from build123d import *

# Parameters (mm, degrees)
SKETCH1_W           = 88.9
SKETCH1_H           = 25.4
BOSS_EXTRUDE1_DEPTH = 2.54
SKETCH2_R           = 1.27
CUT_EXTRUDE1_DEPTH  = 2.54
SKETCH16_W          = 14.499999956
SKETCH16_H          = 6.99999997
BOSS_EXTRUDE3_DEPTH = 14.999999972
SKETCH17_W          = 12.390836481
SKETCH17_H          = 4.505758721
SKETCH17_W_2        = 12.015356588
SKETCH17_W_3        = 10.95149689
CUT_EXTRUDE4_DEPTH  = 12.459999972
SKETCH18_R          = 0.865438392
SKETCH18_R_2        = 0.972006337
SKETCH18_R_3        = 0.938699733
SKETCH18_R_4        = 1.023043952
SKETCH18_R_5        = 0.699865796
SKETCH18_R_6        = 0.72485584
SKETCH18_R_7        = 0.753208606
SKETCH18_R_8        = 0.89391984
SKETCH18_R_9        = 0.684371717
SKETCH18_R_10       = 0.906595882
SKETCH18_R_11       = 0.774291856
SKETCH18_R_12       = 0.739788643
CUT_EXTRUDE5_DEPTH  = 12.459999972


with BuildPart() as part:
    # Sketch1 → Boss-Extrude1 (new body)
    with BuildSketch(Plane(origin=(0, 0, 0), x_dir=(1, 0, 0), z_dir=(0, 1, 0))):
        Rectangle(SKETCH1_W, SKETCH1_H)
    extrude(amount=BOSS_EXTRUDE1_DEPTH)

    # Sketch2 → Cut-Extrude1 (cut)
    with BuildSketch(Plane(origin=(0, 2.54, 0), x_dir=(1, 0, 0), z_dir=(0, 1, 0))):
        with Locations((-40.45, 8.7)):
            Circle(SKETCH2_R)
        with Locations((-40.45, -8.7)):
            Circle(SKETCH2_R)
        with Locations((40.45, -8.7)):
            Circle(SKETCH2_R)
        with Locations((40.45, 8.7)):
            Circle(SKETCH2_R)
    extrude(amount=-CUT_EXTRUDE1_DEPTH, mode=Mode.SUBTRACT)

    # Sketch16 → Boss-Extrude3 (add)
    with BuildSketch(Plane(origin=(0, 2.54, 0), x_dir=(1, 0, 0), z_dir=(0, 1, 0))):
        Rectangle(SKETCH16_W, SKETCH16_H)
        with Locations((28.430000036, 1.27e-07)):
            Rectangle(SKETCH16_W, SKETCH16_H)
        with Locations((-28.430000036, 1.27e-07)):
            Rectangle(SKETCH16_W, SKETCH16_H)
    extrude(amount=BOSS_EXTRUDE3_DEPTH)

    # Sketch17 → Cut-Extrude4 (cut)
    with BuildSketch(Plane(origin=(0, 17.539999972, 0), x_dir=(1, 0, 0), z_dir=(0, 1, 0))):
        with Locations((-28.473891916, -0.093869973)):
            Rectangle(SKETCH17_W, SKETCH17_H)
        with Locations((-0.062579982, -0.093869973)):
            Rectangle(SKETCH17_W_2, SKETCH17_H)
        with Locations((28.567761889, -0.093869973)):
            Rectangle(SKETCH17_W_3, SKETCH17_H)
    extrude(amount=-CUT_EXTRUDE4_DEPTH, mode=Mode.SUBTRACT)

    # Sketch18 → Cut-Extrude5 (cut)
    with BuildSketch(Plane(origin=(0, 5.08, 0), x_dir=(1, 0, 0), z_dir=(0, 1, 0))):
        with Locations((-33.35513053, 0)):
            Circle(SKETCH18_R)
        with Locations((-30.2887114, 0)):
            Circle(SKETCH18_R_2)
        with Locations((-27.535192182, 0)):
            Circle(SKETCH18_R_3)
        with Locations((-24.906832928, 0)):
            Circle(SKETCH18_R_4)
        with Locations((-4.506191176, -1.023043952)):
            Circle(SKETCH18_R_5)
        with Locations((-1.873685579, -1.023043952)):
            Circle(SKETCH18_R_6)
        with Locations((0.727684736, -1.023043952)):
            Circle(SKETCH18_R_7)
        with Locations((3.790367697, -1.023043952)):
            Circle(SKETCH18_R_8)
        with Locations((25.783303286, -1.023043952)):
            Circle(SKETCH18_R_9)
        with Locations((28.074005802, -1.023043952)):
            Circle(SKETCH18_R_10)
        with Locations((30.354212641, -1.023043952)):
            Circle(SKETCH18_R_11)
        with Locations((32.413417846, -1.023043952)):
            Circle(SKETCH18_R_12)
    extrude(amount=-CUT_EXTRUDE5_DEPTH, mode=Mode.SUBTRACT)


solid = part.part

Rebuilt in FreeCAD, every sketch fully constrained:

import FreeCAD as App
import Part
import Sketcher

doc = App.newDocument("Part")
body = doc.addObject("PartDesign::Body", "Body")

# Sketch on XZ plane
sketch1 = body.newObject("Sketcher::SketchObject", "Sketch")
sketch1.AttachmentSupport = (doc.getObject("XZ_Plane"), [""])
sketch1.MapMode = "FlatFace"
sketch1.addGeometry([
    Part.LineSegment(App.Vector(-44, -13, 0), App.Vector(-44, 13, 0)),
    Part.LineSegment(App.Vector(-44, 13, 0), App.Vector(44, 13, 0)),
    Part.LineSegment(App.Vector(44, 13, 0), App.Vector(44, -13, 0)),
    Part.LineSegment(App.Vector(44, -13, 0), App.Vector(-44, -13, 0)),
], False)
sketch1.addConstraint([
    Sketcher.Constraint("Coincident", 0, 2, 1, 1),
    Sketcher.Constraint("Coincident", 1, 2, 2, 1),
    Sketcher.Constraint("Coincident", 2, 2, 3, 1),
    Sketcher.Constraint("Coincident", 3, 2, 0, 1),
    Sketcher.Constraint("Vertical", 0),
    Sketcher.Constraint("Horizontal", 1),
    Sketcher.Constraint("Vertical", 2),
    Sketcher.Constraint("Horizontal", 3),
    Sketcher.Constraint("Symmetric", 0, 2, 2, 2, -1, 1),
    Sketcher.Constraint("DistanceX", 1, 1, 1, 2, 88.9),
    Sketcher.Constraint("DistanceY", 0, 1, 0, 2, 25.4),
])
pad1 = body.newObject("PartDesign::Pad", "Pad")
pad1.Profile = sketch1
pad1.Length = 2.54
pad1.Reversed = True

# Sketch on XZ plane
sketch2 = body.newObject("Sketcher::SketchObject", "Sketch001")
sketch2.AttachmentSupport = (doc.getObject("XZ_Plane"), [""])
sketch2.MapMode = "FlatFace"
sketch2.AttachmentOffset = App.Placement(App.Vector(0, 0, -2.54), App.Rotation())
sketch2.addGeometry([
    Part.Circle(App.Vector(-40.5, -8.7, 0), App.Vector(0, 0, 1), 1.3),
    Part.Circle(App.Vector(-40.5, 8.7, 0), App.Vector(0, 0, 1), 1.3),
    Part.Circle(App.Vector(40.5, 8.7, 0), App.Vector(0, 0, 1), 1.3),
    Part.Circle(App.Vector(40.5, -8.7, 0), App.Vector(0, 0, 1), 1.3),
], False)
sketch2.addConstraint([
    Sketcher.Constraint("Equal", 0, 1),
    Sketcher.Constraint("Equal", 1, 2),
    Sketcher.Constraint("Equal", 2, 3),
    Sketcher.Constraint("Symmetric", 0, 3, 2, 3, -1, 1),
    Sketcher.Constraint("Symmetric", 1, 3, 3, 3, -1, 1),
    Sketcher.Constraint("Symmetric", 1, 3, 2, 3, -2),
    Sketcher.Constraint("Diameter", 0, 2.54),
    Sketcher.Constraint("DistanceY", 0, 3, -1, 1, 8.7),
    Sketcher.Constraint("DistanceX", 1, 3, 2, 3, 80.9),
])
pocket1 = body.newObject("PartDesign::Pocket", "Pocket")
pocket1.Profile = sketch2
pocket1.Length = 2.54
pocket1.Reversed = True

# Sketch on XZ plane
sketch3 = body.newObject("Sketcher::SketchObject", "Sketch002")
sketch3.AttachmentSupport = (doc.getObject("XZ_Plane"), [""])
sketch3.MapMode = "FlatFace"
sketch3.AttachmentOffset = App.Placement(App.Vector(0, 0, -2.54), App.Rotation())
sketch3.addGeometry([
    Part.LineSegment(App.Vector(-7, -3, 0), App.Vector(-7, 3, 0)),  # 0
    Part.LineSegment(App.Vector(-7, 3, 0), App.Vector(7, 3, 0)),  # 1
    Part.LineSegment(App.Vector(7, 3, 0), App.Vector(7, -3, 0)),  # 2
    Part.LineSegment(App.Vector(7, -3, 0), App.Vector(-7, -3, 0)),  # 3
    Part.LineSegment(App.Vector(21, -4, 0), App.Vector(21, 3, 0)),  # 4
    Part.LineSegment(App.Vector(21, 3, 0), App.Vector(36, 3, 0)),  # 5
    Part.LineSegment(App.Vector(36, 3, 0), App.Vector(36, -4, 0)),  # 6
    Part.LineSegment(App.Vector(36, -4, 0), App.Vector(21, -4, 0)),  # 7
    Part.LineSegment(App.Vector(-36, -4, 0), App.Vector(-36, 3, 0)),  # 8
    Part.LineSegment(App.Vector(-36, 3, 0), App.Vector(-21, 3, 0)),  # 9
    Part.LineSegment(App.Vector(-21, 3, 0), App.Vector(-21, -4, 0)),  # 10
    Part.LineSegment(App.Vector(-21, -4, 0), App.Vector(-36, -4, 0)),  # 11
], False)
sketch3.addConstraint([
    Sketcher.Constraint("Coincident", 0, 2, 1, 1),
    Sketcher.Constraint("Coincident", 1, 2, 2, 1),
    Sketcher.Constraint("Coincident", 2, 2, 3, 1),
    Sketcher.Constraint("Coincident", 3, 2, 0, 1),
    Sketcher.Constraint("Coincident", 4, 2, 5, 1),
    Sketcher.Constraint("Coincident", 5, 2, 6, 1),
    Sketcher.Constraint("Coincident", 6, 2, 7, 1),
    Sketcher.Constraint("Coincident", 7, 2, 4, 1),
    Sketcher.Constraint("Coincident", 8, 2, 9, 1),
    Sketcher.Constraint("Coincident", 9, 2, 10, 1),
    Sketcher.Constraint("Coincident", 10, 2, 11, 1),
    Sketcher.Constraint("Coincident", 11, 2, 8, 1),
    Sketcher.Constraint("Vertical", 0),
    Sketcher.Constraint("Horizontal", 1),
    Sketcher.Constraint("Vertical", 2),
    Sketcher.Constraint("Horizontal", 3),
    Sketcher.Constraint("Vertical", 4),
    Sketcher.Constraint("Horizontal", 5),
    Sketcher.Constraint("Vertical", 6),
    Sketcher.Constraint("Horizontal", 7),
    Sketcher.Constraint("Vertical", 8),
    Sketcher.Constraint("Horizontal", 9),
    Sketcher.Constraint("Vertical", 10),
    Sketcher.Constraint("Horizontal", 11),
    Sketcher.Constraint("Symmetric", 0, 2, 2, 2, -1, 1),
    Sketcher.Constraint("Symmetric", 6, 2, 8, 2, -1, 1),
    Sketcher.Constraint("Symmetric", 4, 2, 10, 2, -1, 1),
    Sketcher.Constraint("Horizontal", 1, 2, 4, 2),
    Sketcher.Constraint("Horizontal", 3, 2, 6, 2),
    Sketcher.Constraint("Equal", 3, 5),
    Sketcher.Constraint("DistanceY", 0, 1, 0, 2, 7.0),
    Sketcher.Constraint("DistanceX", 1, 1, 1, 2, 14.5),
    Sketcher.Constraint("DistanceX", -1, 1, 4, 2, 21.18),
])
pad2 = body.newObject("PartDesign::Pad", "Pad001")
pad2.Profile = sketch3
pad2.Length = 15
pad2.Reversed = True

# Sketch on XZ plane
sketch4 = body.newObject("Sketcher::SketchObject", "Sketch003")
sketch4.AttachmentSupport = (doc.getObject("XZ_Plane"), [""])
sketch4.MapMode = "FlatFace"
sketch4.AttachmentOffset = App.Placement(App.Vector(0, 0, -17.54), App.Rotation())
sketch4.addGeometry([
    Part.LineSegment(App.Vector(-34.7, -2.2, 0), App.Vector(-34.7, 2.3, 0)),  # 0
    Part.LineSegment(App.Vector(-34.7, 2.3, 0), App.Vector(-22.3, 2.3, 0)),  # 1
    Part.LineSegment(App.Vector(-22.3, 2.3, 0), App.Vector(-22.3, -2.2, 0)),  # 2
    Part.LineSegment(App.Vector(-22.3, -2.2, 0), App.Vector(-34.7, -2.2, 0)),  # 3
    Part.LineSegment(App.Vector(-6.1, -2.2, 0), App.Vector(-6.1, 2.3, 0)),  # 4
    Part.LineSegment(App.Vector(-6.1, 2.3, 0), App.Vector(5.9, 2.3, 0)),  # 5
    Part.LineSegment(App.Vector(5.9, 2.3, 0), App.Vector(5.9, -2.2, 0)),  # 6
    Part.LineSegment(App.Vector(5.9, -2.2, 0), App.Vector(-6.1, -2.2, 0)),  # 7
    Part.LineSegment(App.Vector(23.1, -2.2, 0), App.Vector(23.1, 2.3, 0)),  # 8
    Part.LineSegment(App.Vector(23.1, 2.3, 0), App.Vector(34, 2.3, 0)),  # 9
    Part.LineSegment(App.Vector(34, 2.3, 0), App.Vector(34, -2.2, 0)),  # 10
    Part.LineSegment(App.Vector(34, -2.2, 0), App.Vector(23.1, -2.2, 0)),  # 11
], False)
sketch4.addConstraint([
    Sketcher.Constraint("Coincident", 0, 2, 1, 1),
    Sketcher.Constraint("Coincident", 1, 2, 2, 1),
    Sketcher.Constraint("Coincident", 2, 2, 3, 1),
    Sketcher.Constraint("Coincident", 3, 2, 0, 1),
    Sketcher.Constraint("Coincident", 4, 2, 5, 1),
    Sketcher.Constraint("Coincident", 5, 2, 6, 1),
    Sketcher.Constraint("Coincident", 6, 2, 7, 1),
    Sketcher.Constraint("Coincident", 7, 2, 4, 1),
    Sketcher.Constraint("Coincident", 8, 2, 9, 1),
    Sketcher.Constraint("Coincident", 9, 2, 10, 1),
    Sketcher.Constraint("Coincident", 10, 2, 11, 1),
    Sketcher.Constraint("Coincident", 11, 2, 8, 1),
    Sketcher.Constraint("Vertical", 0),
    Sketcher.Constraint("Horizontal", 1),
    Sketcher.Constraint("Vertical", 2),
    Sketcher.Constraint("Horizontal", 3),
    Sketcher.Constraint("Vertical", 4),
    Sketcher.Constraint("Horizontal", 5),
    Sketcher.Constraint("Vertical", 6),
    Sketcher.Constraint("Horizontal", 7),
    Sketcher.Constraint("Vertical", 8),
    Sketcher.Constraint("Horizontal", 9),
    Sketcher.Constraint("Vertical", 10),
    Sketcher.Constraint("Horizontal", 11),
    Sketcher.Constraint("Horizontal", 1, 2, 4, 2),
    Sketcher.Constraint("Horizontal", 3, 2, 6, 2),
    Sketcher.Constraint("Horizontal", 5, 2, 8, 2),
    Sketcher.Constraint("Horizontal", 7, 2, 10, 2),
    Sketcher.Constraint("DistanceY", 0, 1, 0, 2, 4.505759),
    Sketcher.Constraint("DistanceX", -1, 1, 5, 2, 5.945098),
    Sketcher.Constraint("DistanceX", 1, 1, 1, 2, 12.390836),
    Sketcher.Constraint("DistanceX", 5, 1, 5, 2, 12.015357),
    Sketcher.Constraint("DistanceX", 9, 1, 9, 2, 10.951497),
    Sketcher.Constraint("DistanceX", 0, 2, -1, 1, 34.66931),
    Sketcher.Constraint("DistanceY", -1, 1, 0, 2, 2.346749),
    Sketcher.Constraint("DistanceX", -1, 1, 9, 2, 34.04351),
])
pocket2 = body.newObject("PartDesign::Pocket", "Pocket001")
pocket2.Profile = sketch4
pocket2.Length = 12.46
pocket2.Reversed = True

# Sketch on XZ plane
sketch5 = body.newObject("Sketcher::SketchObject", "Sketch004")
sketch5.AttachmentSupport = (doc.getObject("XZ_Plane"), [""])
sketch5.MapMode = "FlatFace"
sketch5.AttachmentOffset = App.Placement(App.Vector(0, 0, -5.08), App.Rotation())
sketch5.addGeometry([
    Part.Circle(App.Vector(-33.4, 0, 0), App.Vector(0, 0, 1), 0.9),  # 0
    Part.Circle(App.Vector(-30.3, 0, 0), App.Vector(0, 0, 1), 1),  # 1
    Part.Circle(App.Vector(-27.5, 0, 0), App.Vector(0, 0, 1), 0.9),  # 2
    Part.Circle(App.Vector(-24.9, 0, 0), App.Vector(0, 0, 1), 1),  # 3
    Part.Circle(App.Vector(-4.5, 1, 0), App.Vector(0, 0, 1), 0.7),  # 4
    Part.Circle(App.Vector(-1.9, 1, 0), App.Vector(0, 0, 1), 0.7),  # 5
    Part.Circle(App.Vector(0.7, 1, 0), App.Vector(0, 0, 1), 0.8),  # 6
    Part.Circle(App.Vector(3.8, 1, 0), App.Vector(0, 0, 1), 0.9),  # 7
    Part.Circle(App.Vector(25.8, 1, 0), App.Vector(0, 0, 1), 0.7),  # 8
    Part.Circle(App.Vector(28.1, 1, 0), App.Vector(0, 0, 1), 0.9),  # 9
    Part.Circle(App.Vector(30.4, 1, 0), App.Vector(0, 0, 1), 0.8),  # 10
    Part.Circle(App.Vector(32.4, 1, 0), App.Vector(0, 0, 1), 0.7),  # 11
], False)
sketch5.addConstraint([
    Sketcher.Constraint("PointOnObject", 0, 3, -1),
    Sketcher.Constraint("PointOnObject", 1, 3, -1),
    Sketcher.Constraint("PointOnObject", 2, 3, -1),
    Sketcher.Constraint("PointOnObject", 3, 3, -1),
    Sketcher.Constraint("Horizontal", 4, 3, 5, 3),
    Sketcher.Constraint("Horizontal", 5, 3, 6, 3),
    Sketcher.Constraint("Horizontal", 6, 3, 7, 3),
    Sketcher.Constraint("Horizontal", 7, 3, 8, 3),
    Sketcher.Constraint("Horizontal", 8, 3, 9, 3),
    Sketcher.Constraint("Horizontal", 9, 3, 10, 3),
    Sketcher.Constraint("Horizontal", 10, 3, 11, 3),
    Sketcher.Constraint("Diameter", 2, 1.877399),
    Sketcher.Constraint("Diameter", 4, 1.399732),
    Sketcher.Constraint("Diameter", 5, 1.449712),
    Sketcher.Constraint("Diameter", 7, 1.78784),
    Sketcher.Constraint("Diameter", 9, 1.813192),
    Sketcher.Constraint("Diameter", 0, 1.730877),
    Sketcher.Constraint("Diameter", 1, 1.944013),
    Sketcher.Constraint("Diameter", 3, 2.046088),
    Sketcher.Constraint("Diameter", 6, 1.506417),
    Sketcher.Constraint("Diameter", 8, 1.368743),
    Sketcher.Constraint("Diameter", 10, 1.548584),
    Sketcher.Constraint("Diameter", 11, 1.479577),
    Sketcher.Constraint("DistanceX", 2, 3, 4, 3, 23.029001),
    Sketcher.Constraint("DistanceX", 3, 3, 7, 3, 28.697201),
    Sketcher.Constraint("DistanceX", 5, 3, 10, 3, 32.227898),
    Sketcher.Constraint("DistanceX", 0, 3, -1, 1, 33.355131),
    Sketcher.Constraint("DistanceX", 1, 3, -1, 1, 30.288711),
    Sketcher.Constraint("DistanceX", 4, 3, -1, 1, 4.506191),
    Sketcher.Constraint("DistanceX", 2, 3, 3, 3, 2.628359),
    Sketcher.Constraint("DistanceX", 5, 3, 6, 3, 2.60137),
    Sketcher.Constraint("DistanceX", 6, 3, 8, 3, 25.055619),
    Sketcher.Constraint("DistanceX", 7, 3, 9, 3, 24.283638),
    Sketcher.Constraint("DistanceX", 6, 3, 9, 3, 27.346321),
    Sketcher.Constraint("DistanceX", 7, 3, 11, 3, 28.62305),
    Sketcher.Constraint("DistanceY", -1, 1, 4, 3, 1.023044),
])
pocket3 = body.newObject("PartDesign::Pocket", "Pocket002")
pocket3.Profile = sketch5
pocket3.Length = 12.46
pocket3.Reversed = True

doc.recompute()
